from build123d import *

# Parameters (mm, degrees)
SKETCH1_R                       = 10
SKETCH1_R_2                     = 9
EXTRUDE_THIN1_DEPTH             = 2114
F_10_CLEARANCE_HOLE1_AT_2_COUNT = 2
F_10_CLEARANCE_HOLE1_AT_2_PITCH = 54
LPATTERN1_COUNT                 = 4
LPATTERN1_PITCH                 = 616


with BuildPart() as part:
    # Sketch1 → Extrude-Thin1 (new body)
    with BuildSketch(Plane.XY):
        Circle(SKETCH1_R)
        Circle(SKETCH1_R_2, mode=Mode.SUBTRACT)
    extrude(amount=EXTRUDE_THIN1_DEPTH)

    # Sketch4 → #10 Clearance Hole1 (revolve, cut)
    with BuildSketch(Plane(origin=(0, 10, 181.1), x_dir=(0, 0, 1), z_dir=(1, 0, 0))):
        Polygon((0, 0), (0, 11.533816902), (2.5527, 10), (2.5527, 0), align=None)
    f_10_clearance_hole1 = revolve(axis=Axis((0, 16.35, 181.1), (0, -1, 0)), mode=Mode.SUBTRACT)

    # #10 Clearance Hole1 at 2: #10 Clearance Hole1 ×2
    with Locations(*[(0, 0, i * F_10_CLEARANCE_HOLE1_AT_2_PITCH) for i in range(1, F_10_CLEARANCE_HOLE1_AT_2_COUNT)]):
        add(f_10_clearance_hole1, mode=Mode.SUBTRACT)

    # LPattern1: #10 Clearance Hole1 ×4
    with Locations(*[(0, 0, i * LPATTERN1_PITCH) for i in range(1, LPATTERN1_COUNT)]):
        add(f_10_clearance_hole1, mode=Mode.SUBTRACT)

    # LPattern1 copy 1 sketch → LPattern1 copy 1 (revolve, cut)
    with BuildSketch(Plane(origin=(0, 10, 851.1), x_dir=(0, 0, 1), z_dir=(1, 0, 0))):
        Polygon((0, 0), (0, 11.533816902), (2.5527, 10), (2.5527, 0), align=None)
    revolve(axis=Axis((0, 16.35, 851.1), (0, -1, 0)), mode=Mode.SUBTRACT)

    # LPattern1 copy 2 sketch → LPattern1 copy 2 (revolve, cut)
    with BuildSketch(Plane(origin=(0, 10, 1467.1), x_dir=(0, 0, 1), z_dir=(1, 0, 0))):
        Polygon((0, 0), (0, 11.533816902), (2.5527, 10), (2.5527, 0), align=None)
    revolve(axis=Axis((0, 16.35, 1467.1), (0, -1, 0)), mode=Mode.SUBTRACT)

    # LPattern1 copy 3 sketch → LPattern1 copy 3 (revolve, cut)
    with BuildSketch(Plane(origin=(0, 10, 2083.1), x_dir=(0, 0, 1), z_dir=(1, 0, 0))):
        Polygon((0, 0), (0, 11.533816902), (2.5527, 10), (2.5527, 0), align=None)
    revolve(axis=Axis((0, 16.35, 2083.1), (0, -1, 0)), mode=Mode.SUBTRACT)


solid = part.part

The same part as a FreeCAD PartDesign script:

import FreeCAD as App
import Part
import Sketcher
from FreeCAD import Vector
Q = App.Units.Quantity


def add_polygon(sketch, points):
    """Adds a closed chain of lines whose ends are joined by coincident constraints."""
    first, n = sketch.GeometryCount, len(points)
    for a, b in zip(points, points[1:] + points[:1]):
        sketch.addGeometry(Part.LineSegment(App.Vector(*a, 0), App.Vector(*b, 0)), False)
    for i in range(n):
        sketch.addConstraint(Sketcher.Constraint("Coincident", first + i, 2, first + (i + 1) % n, 1))

doc = App.newDocument("Part")
params = doc.addObject("Spreadsheet::Sheet", "Params")
for row, (alias, value) in enumerate([
    ("sketch1_diameter", "20 mm"),
    ("sketch1_diameter2", "18 mm"),
    ("pad1_length", "2114 mm"),
    ("sketch2_width", "10 mm"),
    ("groove_angle", "360 deg"),
    ("linearpattern_pitch", "54 mm"),
    ("linearpattern2_pitch", "616 mm"),
    ("sketch3_width", "10 mm"),
    ("groove2_angle", "360 deg"),
    ("sketch4_width", "10 mm"),
    ("groove3_angle", "360 deg"),
    ("sketch5_width", "10 mm"),
    ("groove4_angle", "360 deg"),
], start=1):
    params.set(f"A{row}", alias)
    params.set(f"B{row}", "=" + value)
    params.setAlias(f"B{row}", alias)

body = doc.addObject("PartDesign::Body", "Body")

# Sketch on XY plane
sketch1 = body.newObject("Sketcher::SketchObject", "Sketch")
sketch1.AttachmentSupport = (doc.getObject("XY_Plane"), [""])
sketch1.MapMode = "FlatFace"
sketch1.addGeometry([
    Part.Circle(Vector(0, 0, 0), Vector(0, 0, 1), 10),
    Part.Circle(Vector(0, 0, 0), Vector(0, 0, 1), 9),
], False)
sketch1.addConstraint([
    Sketcher.Constraint("Coincident", 0, 3, -1, 1),
    Sketcher.Constraint("Coincident", 1, 3, -1, 1),
    Sketcher.Constraint("Diameter", 0, 20.0),
    Sketcher.Constraint("Diameter", 1, 18.0),
])
sketch1.setExpression("Constraints[2]", "Params.sketch1_diameter")
sketch1.setExpression("Constraints[3]", "Params.sketch1_diameter2")
pad1 = body.newObject("PartDesign::Pad", "Pad")
pad1.Profile = sketch1
pad1.setExpression("Length", "Params.pad1_length")

# Sketch on YZ plane
sketch2 = body.newObject("Sketcher::SketchObject", "Sketch001")
sketch2.AttachmentSupport = (doc.getObject("YZ_Plane"), [""])
sketch2.MapMode = "FlatFace"
add_polygon(sketch2, [(-1.5, 181.1), (10, 181.1), (10, 183.7), (0, 183.7)])  # lines 0-3
sketch2.addGeometry(Part.LineSegment(Vector(10, 181.1, 0), Vector(-1.5, 181.1, 0)), True)  # axis
sketch2.addConstraint([
    Sketcher.Constraint("Horizontal", 0),
    Sketcher.Constraint("Vertical", 1),
    Sketcher.Constraint("Horizontal", 2),
    Sketcher.Constraint("Horizontal", 4),
    Sketcher.Constraint("Coincident", 4, 1, 0, 2),
    Sketcher.Constraint("PointOnObject", 2, 2, -2),
    Sketcher.Constraint("Equal", 0, 4),
    Sketcher.Constraint("DistanceX", 2, 2, 2, 1, 10.0),
    Sketcher.Constraint("Angle", 3, Q("-121 deg")),
    Sketcher.Constraint("DistanceY", -1, 1, 0, 2, 181.1),
    Sketcher.Constraint("DistanceY", 1, 1, 1, 2, 2.5527),
])
sketch2.setExpression("Constraints[11]", "Params.sketch2_width")
groove = body.newObject("PartDesign::Groove", "Groove")
groove.Profile = sketch2
groove.ReferenceAxis = (sketch2, ["Axis0"])
groove.setExpression("Angle", "Params.groove_angle")
doc.recompute()

linearpattern = body.newObject("PartDesign::LinearPattern", "LinearPattern")
linearpattern.Originals = [groove]
linearpattern.Direction = (doc.getObject("Z_Axis"), [""])
linearpattern.Mode = "offset"
linearpattern.setExpression("Offset", "Params.linearpattern_pitch")
linearpattern.Occurrences = 2
body.Tip = linearpattern
doc.recompute()

linearpattern2 = body.newObject("PartDesign::LinearPattern", "LinearPattern001")
linearpattern2.Originals = [groove]
linearpattern2.Direction = (doc.getObject("Z_Axis"), [""])
linearpattern2.Mode = "offset"
linearpattern2.setExpression("Offset", "Params.linearpattern2_pitch")
linearpattern2.Occurrences = 4
body.Tip = linearpattern2

# Sketch on YZ plane
sketch3 = body.newObject("Sketcher::SketchObject", "Sketch002")
sketch3.AttachmentSupport = (doc.getObject("YZ_Plane"), [""])
sketch3.MapMode = "FlatFace"
add_polygon(sketch3, [(-1.5, 851.1), (10, 851.1), (10, 853.7), (0, 853.7)])  # lines 0-3
sketch3.addGeometry(Part.LineSegment(Vector(10, 851.1, 0), Vector(-1.5, 851.1, 0)), True)  # axis
sketch3.addConstraint([
    Sketcher.Constraint("Horizontal", 0),
    Sketcher.Constraint("Vertical", 1),
    Sketcher.Constraint("Horizontal", 2),
    Sketcher.Constraint("Horizontal", 4),
    Sketcher.Constraint("Coincident", 4, 1, 0, 2),
    Sketcher.Constraint("PointOnObject", 2, 2, -2),
    Sketcher.Constraint("Equal", 0, 4),
    Sketcher.Constraint("DistanceX", 2, 2, 2, 1, 10.0),
    Sketcher.Constraint("Angle", 3, Q("-121 deg")),
    Sketcher.Constraint("DistanceY", -1, 1, 0, 2, 851.1),
    Sketcher.Constraint("DistanceY", 1, 1, 1, 2, 2.5527),
])
sketch3.setExpression("Constraints[11]", "Params.sketch3_width")
groove2 = body.newObject("PartDesign::Groove", "Groove001")
groove2.Profile = sketch3
groove2.ReferenceAxis = (sketch3, ["Axis0"])
groove2.setExpression("Angle", "Params.groove2_angle")

# Sketch on YZ plane
sketch4 = body.newObject("Sketcher::SketchObject", "Sketch003")
sketch4.AttachmentSupport = (doc.getObject("YZ_Plane"), [""])
sketch4.MapMode = "FlatFace"
add_polygon(sketch4, [(-1.5, 1467.1), (10, 1467.1), (10, 1469.7), (0, 1469.7)])  # lines 0-3
sketch4.addGeometry(Part.LineSegment(Vector(10, 1467.1, 0), Vector(-1.5, 1467.1, 0)), True)  # axis
sketch4.addConstraint([
    Sketcher.Constraint("Horizontal", 0),
    Sketcher.Constraint("Vertical", 1),
    Sketcher.Constraint("Horizontal", 2),
    Sketcher.Constraint("Horizontal", 4),
    Sketcher.Constraint("Coincident", 4, 1, 0, 2),
    Sketcher.Constraint("PointOnObject", 2, 2, -2),
    Sketcher.Constraint("Equal", 0, 4),
    Sketcher.Constraint("DistanceX", 2, 2, 2, 1, 10.0),
    Sketcher.Constraint("Angle", 3, Q("-121 deg")),
    Sketcher.Constraint("DistanceY", -1, 1, 0, 2, 1467.1),
    Sketcher.Constraint("DistanceY", 1, 1, 1, 2, 2.5527),
])
sketch4.setExpression("Constraints[11]", "Params.sketch4_width")
groove3 = body.newObject("PartDesign::Groove", "Groove002")
groove3.Profile = sketch4
groove3.ReferenceAxis = (sketch4, ["Axis0"])
groove3.setExpression("Angle", "Params.groove3_angle")

# Sketch on YZ plane
sketch5 = body.newObject("Sketcher::SketchObject", "Sketch004")
sketch5.AttachmentSupport = (doc.getObject("YZ_Plane"), [""])
sketch5.MapMode = "FlatFace"
add_polygon(sketch5, [(-1.5, 2083.1), (10, 2083.1), (10, 2085.7), (0, 2085.7)])  # lines 0-3
sketch5.addGeometry(Part.LineSegment(Vector(10, 2083.1, 0), Vector(-1.5, 2083.1, 0)), True)  # axis
sketch5.addConstraint([
    Sketcher.Constraint("Horizontal", 0),
    Sketcher.Constraint("Vertical", 1),
    Sketcher.Constraint("Horizontal", 2),
    Sketcher.Constraint("Horizontal", 4),
    Sketcher.Constraint("Coincident", 4, 1, 0, 2),
    Sketcher.Constraint("PointOnObject", 2, 2, -2),
    Sketcher.Constraint("Equal", 0, 4),
    Sketcher.Constraint("DistanceX", 2, 2, 2, 1, 10.0),
    Sketcher.Constraint("Angle", 3, Q("-121 deg")),
    Sketcher.Constraint("DistanceY", -1, 1, 0, 2, 2083.1),
    Sketcher.Constraint("DistanceY", 1, 1, 1, 2, 2.5527),
])
sketch5.setExpression("Constraints[11]", "Params.sketch5_width")
groove4 = body.newObject("PartDesign::Groove", "Groove003")
groove4.Profile = sketch5
groove4.ReferenceAxis = (sketch5, ["Axis0"])
groove4.setExpression("Angle", "Params.groove4_angle")

doc.recompute()
